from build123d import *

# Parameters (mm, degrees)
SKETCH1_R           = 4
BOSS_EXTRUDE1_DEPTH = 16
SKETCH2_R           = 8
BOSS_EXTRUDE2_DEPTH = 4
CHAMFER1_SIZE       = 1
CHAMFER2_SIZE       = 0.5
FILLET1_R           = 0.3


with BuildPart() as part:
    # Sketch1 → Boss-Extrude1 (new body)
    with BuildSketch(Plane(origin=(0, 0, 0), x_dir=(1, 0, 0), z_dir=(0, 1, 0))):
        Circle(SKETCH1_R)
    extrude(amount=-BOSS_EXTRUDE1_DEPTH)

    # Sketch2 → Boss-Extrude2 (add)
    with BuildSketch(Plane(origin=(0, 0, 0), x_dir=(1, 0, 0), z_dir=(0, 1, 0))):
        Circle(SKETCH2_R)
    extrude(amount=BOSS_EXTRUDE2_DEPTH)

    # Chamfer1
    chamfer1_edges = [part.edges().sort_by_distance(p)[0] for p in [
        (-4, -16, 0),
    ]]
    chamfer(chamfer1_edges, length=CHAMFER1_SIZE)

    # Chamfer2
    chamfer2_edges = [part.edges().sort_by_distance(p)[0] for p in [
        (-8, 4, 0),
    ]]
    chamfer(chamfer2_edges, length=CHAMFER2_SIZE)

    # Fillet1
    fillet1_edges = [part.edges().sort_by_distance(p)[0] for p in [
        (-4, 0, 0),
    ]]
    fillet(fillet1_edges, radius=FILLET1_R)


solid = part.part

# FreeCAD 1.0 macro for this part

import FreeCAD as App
import Part
import Sketcher

V = App.Vector
Q = App.Units.Quantity


def edges_at(feature, points):
    """Names of the edges that pass closest to the given points."""
    edges = feature.Shape.Edges
    near = lambda p: min(range(len(edges)), key=lambda i: edges[i].distToShape(Part.Vertex(*p))[0])
    return sorted({f"Edge{near(p) + 1}" for p in points})

doc = App.newDocument("Part")
body = doc.addObject("PartDesign::Body", "Body")

# Sketch on XZ plane
sketch1 = body.newObject("Sketcher::SketchObject", "Sketch")
sketch1.AttachmentSupport = (doc.getObject("XZ_Plane"), [""])
sketch1.MapMode = "FlatFace"
sketch1.addGeometry(Part.Circle(V(0, 0, 0), V(0, 0, 1), 4), False)
sketch1.addConstraint([
    Sketcher.Constraint("Coincident", 0, 3, -1, 1),
    Sketcher.Constraint("Diameter", 0, Q("8 mm")),
])
pad1 = body.newObject("PartDesign::Pad", "Pad")
pad1.Profile = sketch1
pad1.Length = 16

# Sketch on XZ plane
sketch2 = body.newObject("Sketcher::SketchObject", "Sketch001")
sketch2.AttachmentSupport = (doc.getObject("XZ_Plane"), [""])
sketch2.MapMode = "FlatFace"
sketch2.addGeometry(Part.Circle(V(0, 0, 0), V(0, 0, 1), 8), False)
sketch2.addConstraint([
    Sketcher.Constraint("Coincident", 0, 3, -1, 1),
    Sketcher.Constraint("Diameter", 0, Q("16 mm")),
])
pad2 = body.newObject("PartDesign::Pad", "Pad001")
pad2.Profile = sketch2
pad2.Length = 4
pad2.Reversed = True
doc.recompute()

chamfer = body.newObject("PartDesign::Chamfer", "Chamfer")
chamfer.Base = (pad2, edges_at(pad2, [(-4, -16, 0)]))
chamfer.Size = 1
doc.recompute()

chamfer2 = body.newObject("PartDesign::Chamfer", "Chamfer001")
chamfer2.Base = (chamfer, edges_at(chamfer, [(-8, 4, 0)]))
chamfer2.Size = 0.5
doc.recompute()

fillet = body.newObject("PartDesign::Fillet", "Fillet")
fillet.Base = (chamfer2, edges_at(chamfer2, [(-4, 0, 0)]))
fillet.Radius = 0.3

doc.recompute()
